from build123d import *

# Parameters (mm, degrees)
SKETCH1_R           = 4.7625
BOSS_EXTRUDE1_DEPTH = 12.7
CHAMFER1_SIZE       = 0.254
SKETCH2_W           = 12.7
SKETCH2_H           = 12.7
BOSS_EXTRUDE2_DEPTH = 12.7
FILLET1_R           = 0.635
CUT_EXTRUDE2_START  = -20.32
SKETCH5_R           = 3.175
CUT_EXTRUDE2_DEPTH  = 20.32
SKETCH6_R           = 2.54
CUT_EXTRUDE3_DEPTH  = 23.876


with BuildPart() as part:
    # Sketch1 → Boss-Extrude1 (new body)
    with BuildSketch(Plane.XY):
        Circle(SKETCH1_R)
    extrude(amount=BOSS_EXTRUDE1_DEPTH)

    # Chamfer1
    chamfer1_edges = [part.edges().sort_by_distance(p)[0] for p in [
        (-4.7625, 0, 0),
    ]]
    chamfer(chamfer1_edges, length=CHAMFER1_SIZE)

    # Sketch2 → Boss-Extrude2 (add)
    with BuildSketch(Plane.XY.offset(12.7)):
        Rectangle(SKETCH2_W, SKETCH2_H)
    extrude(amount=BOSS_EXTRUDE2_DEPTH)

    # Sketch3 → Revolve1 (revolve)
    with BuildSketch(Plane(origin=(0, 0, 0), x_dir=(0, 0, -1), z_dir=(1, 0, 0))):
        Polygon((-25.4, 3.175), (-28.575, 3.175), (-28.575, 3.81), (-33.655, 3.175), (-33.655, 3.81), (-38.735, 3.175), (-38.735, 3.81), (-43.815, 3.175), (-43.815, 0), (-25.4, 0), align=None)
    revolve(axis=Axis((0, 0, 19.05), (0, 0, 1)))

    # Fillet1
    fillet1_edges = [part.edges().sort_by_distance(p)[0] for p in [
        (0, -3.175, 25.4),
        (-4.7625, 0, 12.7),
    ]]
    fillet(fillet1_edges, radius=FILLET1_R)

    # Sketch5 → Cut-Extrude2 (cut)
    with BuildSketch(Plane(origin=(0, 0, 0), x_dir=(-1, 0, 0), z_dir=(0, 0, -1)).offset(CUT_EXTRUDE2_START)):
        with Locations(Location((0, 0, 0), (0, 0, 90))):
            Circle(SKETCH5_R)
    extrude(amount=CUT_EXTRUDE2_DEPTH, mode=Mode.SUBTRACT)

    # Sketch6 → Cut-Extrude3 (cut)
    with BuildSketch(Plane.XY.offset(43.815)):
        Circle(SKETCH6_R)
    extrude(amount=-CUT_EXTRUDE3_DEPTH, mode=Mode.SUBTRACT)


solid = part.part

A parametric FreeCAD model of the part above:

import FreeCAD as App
import Part
import Sketcher
from FreeCAD import Vector
Q = App.Units.Quantity


def edges_at(feature, points):
    """Names of the edges that pass closest to the given points."""
    edges = feature.Shape.Edges
    near = lambda p: min(range(len(edges)), key=lambda i: edges[i].distToShape(Part.Vertex(*p))[0])
    return sorted({f"Edge{near(p) + 1}" for p in points})


def add_polygon(sketch, points):
    """Adds a closed chain of lines whose ends are joined by coincident constraints."""
    first, n = sketch.GeometryCount, len(points)
    for a, b in zip(points, points[1:] + points[:1]):
        sketch.addGeometry(Part.LineSegment(App.Vector(*a, 0), App.Vector(*b, 0)), False)
    for i in range(n):
        sketch.addConstraint(Sketcher.Constraint("Coincident", first + i, 2, first + (i + 1) % n, 1))

doc = App.newDocument("Part")
params = doc.addObject("Spreadsheet::Sheet", "Params")
for row, (alias, value) in enumerate([
    ("sketch1_diameter", "0.375 in"),
    ("pad1_length", "0.5 in"),
    ("chamfer_size", "0.01 in"),
    ("sketch2_width", "0.5 in"),
    ("pad2_length", "0.5 in"),
    ("sketch3_width", "0.025 in"),
    ("sketch3_width2", "0.125 in"),
    ("revolution_angle", "360 deg"),
    ("fillet_radius", "0.025 in"),
    ("sketch4_diameter", "0.25 in"),
    ("pocket1_length", "0.8 in"),
    ("sketch5_diameter", "0.2 in"),
    ("pocket2_length", "0.94 in"),
], start=1):
    params.set(f"A{row}", alias)
    params.set(f"B{row}", "=" + value)
    params.setAlias(f"B{row}", alias)

body = doc.addObject("PartDesign::Body", "Body")

sketch1 = body.newObject("Sketcher::SketchObject", "Sketch")
sketch1.AttachmentSupport = (doc.getObject("XY_Plane"), [""])
sketch1.MapMode = "FlatFace"
sketch1.addGeometry(Part.Circle(Vector(0, 0, 0), Vector(0, 0, 1), 4.8), False)
sketch1.addConstraint(Sketcher.Constraint("Coincident", 0, 3, -1, 1))
sketch1.addConstraint(Sketcher.Constraint("Diameter", 0, Q("0.375 in")))
sketch1.setExpression("Constraints[1]", "Params.sketch1_diameter")
pad1 = body.newObject("PartDesign::Pad", "Pad")
pad1.Profile = sketch1
pad1.setExpression("Length", "Params.pad1_length")
doc.recompute()

chamfer = body.newObject("PartDesign::Chamfer", "Chamfer")
chamfer.Base = (pad1, edges_at(pad1, [(-4.763, 0, 0)]))
chamfer.setExpression("Size", "Params.chamfer_size")

sketch2 = body.newObject("Sketcher::SketchObject", "Sketch001")
sketch2.AttachmentSupport = (doc.getObject("XY_Plane"), [""])
sketch2.MapMode = "FlatFace"
sketch2.AttachmentOffset = App.Placement(Vector(0, 0, 0.5 * 25.4), App.Rotation())
add_polygon(sketch2, [(-6, 6), (-6, -6), (6, -6), (6, 6)])
sketch2.addConstraint(Sketcher.Constraint("Vertical", 0))
sketch2.addConstraint(Sketcher.Constraint("Horizontal", 1))
sketch2.addConstraint(Sketcher.Constraint("Vertical", 2))
sketch2.addConstraint(Sketcher.Constraint("Horizontal", 3))
sketch2.addConstraint(Sketcher.Constraint("Symmetric", 0, 2, 2, 2, -1, 1))
sketch2.addConstraint(Sketcher.Constraint("Equal", 3, 0))
sketch2.addConstraint(Sketcher.Constraint("DistanceX", 1, 1, 1, 2, Q("0.5 in")))
sketch2.setExpression("Constraints[10]", "Params.sketch2_width")
pad2 = body.newObject("PartDesign::Pad", "Pad001")
pad2.Profile = sketch2
pad2.setExpression("Length", "Params.pad2_length")

sketch3 = body.newObject("Sketcher::SketchObject", "Sketch002")
sketch3.AttachmentSupport = (doc.getObject("YZ_Plane"), [""])
sketch3.MapMode = "FlatFace"
add_polygon(sketch3, [(3.2, 25.4), (3.2, 28.6), (3.8, 28.6), (3.2, 33.7), (3.8, 33.7), (3.2, 38.7), (3.8, 38.7), (3.2, 43.8), (0, 43.8), (0, 25.4)])
sketch3.addConstraint(Sketcher.Constraint("Vertical", 0))
sketch3.addConstraint(Sketcher.Constraint("Horizontal", 1))
sketch3.addConstraint(Sketcher.Constraint("Horizontal", 3))
sketch3.addConstraint(Sketcher.Constraint("Horizontal", 5))
sketch3.addConstraint(Sketcher.Constraint("Horizontal", 7))
sketch3.addConstraint(Sketcher.Constraint("Vertical", 8))
sketch3.addConstraint(Sketcher.Constraint("Horizontal", 9))
sketch3.addConstraint(Sketcher.Constraint("PointOnObject", 7, 2, -2))
sketch3.addConstraint(Sketcher.Constraint("Parallel", 2, 4))
sketch3.addConstraint(Sketcher.Constraint("Parallel", 4, 6))
sketch3.addConstraint(Sketcher.Constraint("Vertical", 0, 2, 2, 2))
sketch3.addConstraint(Sketcher.Constraint("Vertical", 1, 2, 3, 2))
sketch3.addConstraint(Sketcher.Constraint("Vertical", 2, 2, 4, 2))
sketch3.addConstraint(Sketcher.Constraint("Vertical", 3, 2, 5, 2))
sketch3.addConstraint(Sketcher.Constraint("Vertical", 4, 2, 6, 2))
sketch3.addConstraint(Sketcher.Constraint("Equal", 9, 0))
sketch3.addConstraint(Sketcher.Constraint("DistanceY", -1, 1, 8, 2, Q("1 in")))
sketch3.addConstraint(Sketcher.Constraint("DistanceY", 0, 2, 2, 2, Q("0.2 in")))
sketch3.addConstraint(Sketcher.Constraint("DistanceX", 1, 1, 1, 2, Q("0.025 in")))
sketch3.addConstraint(Sketcher.Constraint("DistanceX", 7, 2, 7, 1, Q("0.125 in")))
sketch3.setExpression("Constraints[28]", "Params.sketch3_width")
sketch3.setExpression("Constraints[29]", "Params.sketch3_width2")
revolution = body.newObject("PartDesign::Revolution", "Revolution")
revolution.Profile = sketch3
revolution.ReferenceAxis = (sketch3, ["V_Axis"])
revolution.setExpression("Angle", "Params.revolution_angle")
doc.recompute()

fillet = body.newObject("PartDesign::Fillet", "Fillet")
fillet.Base = (revolution, edges_at(revolution, [(0, -3.175, 25.4), (-4.763, 0, 12.7)]))
fillet.setExpression("Radius", "Params.fillet_radius")

sketch4 = body.newObject("Sketcher::SketchObject", "Sketch003")
sketch4.AttachmentSupport = (doc.getObject("XY_Plane"), [""])
sketch4.MapMode = "FlatFace"
sketch4.AttachmentOffset = App.Placement(Vector(0, 0, 0.8 * 25.4), App.Rotation())
sketch4.addGeometry(Part.Circle(Vector(0, 0, 0), Vector(0, 0, 1), 3.2), False)
sketch4.addConstraint(Sketcher.Constraint("Coincident", 0, 3, -1, 1))
sketch4.addConstraint(Sketcher.Constraint("Diameter", 0, Q("0.25 in")))
sketch4.setExpression("Constraints[1]", "Params.sketch4_diameter")
pocket1 = body.newObject("PartDesign::Pocket", "Pocket")
pocket1.Profile = sketch4
pocket1.setExpression("Length", "Params.pocket1_length")

sketch5 = body.newObject("Sketcher::SketchObject", "Sketch004")
sketch5.AttachmentSupport = (doc.getObject("XY_Plane"), [""])
sketch5.MapMode = "FlatFace"
sketch5.AttachmentOffset = App.Placement(Vector(0, 0, 1.725 * 25.4), App.Rotation())
sketch5.addGeometry(Part.Circle(Vector(0, 0, 0), Vector(0, 0, 1), 2.5), False)
sketch5.addConstraint(Sketcher.Constraint("Coincident", 0, 3, -1, 1))
sketch5.addConstraint(Sketcher.Constraint("Diameter", 0, Q("0.2 in")))
sketch5.setExpression("Constraints[1]", "Params.sketch5_diameter")
pocket2 = body.newObject("PartDesign::Pocket", "Pocket001")
pocket2.Profile = sketch5
pocket2.setExpression("Length", "Params.pocket2_length")

doc.recompute()
